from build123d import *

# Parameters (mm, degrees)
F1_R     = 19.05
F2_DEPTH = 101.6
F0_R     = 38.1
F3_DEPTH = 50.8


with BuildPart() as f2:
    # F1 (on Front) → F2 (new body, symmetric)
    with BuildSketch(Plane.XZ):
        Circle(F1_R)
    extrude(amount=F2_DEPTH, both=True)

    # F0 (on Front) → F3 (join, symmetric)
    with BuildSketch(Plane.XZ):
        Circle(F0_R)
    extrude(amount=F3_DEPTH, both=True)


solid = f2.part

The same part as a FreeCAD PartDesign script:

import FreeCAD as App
import Part
import Sketcher

V = App.Vector
Q = App.Units.Quantity

doc = App.newDocument("Part")
body = doc.addObject("PartDesign::Body", "Body")

# Sketch on XZ plane
sketch1 = body.newObject("Sketcher::SketchObject", "Sketch")
sketch1.AttachmentSupport = (doc.getObject("XZ_Plane"), [""])
sketch1.MapMode = "FlatFace"
sketch1.addGeometry(Part.Circle(V(0, 0, 0), V(0, 0, 1), 19), False)
sketch1.addConstraint([
    Sketcher.Constraint("Coincident", 0, 3, -1, 1),
    Sketcher.Constraint("Diameter", 0, Q("1.5 in")),
])
pad1 = body.newObject("PartDesign::Pad", "Pad")
pad1.Profile = sketch1
pad1.Length = Q("8 in")
pad1.Midplane = True

# Sketch on XZ plane
sketch2 = body.newObject("Sketcher::SketchObject", "Sketch001")
sketch2.AttachmentSupport = (doc.getObject("XZ_Plane"), [""])
sketch2.MapMode = "FlatFace"
sketch2.addGeometry(Part.Circle(V(0, 0, 0), V(0, 0, 1), 38), False)
sketch2.addConstraint([
    Sketcher.Constraint("Coincident", 0, 3, -1, 1),
    Sketcher.Constraint("Diameter", 0, Q("3 in")),
])
pad2 = body.newObject("PartDesign::Pad", "Pad001")
pad2.Profile = sketch2
pad2.Length = Q("4 in")
pad2.Midplane = True

doc.recompute()
